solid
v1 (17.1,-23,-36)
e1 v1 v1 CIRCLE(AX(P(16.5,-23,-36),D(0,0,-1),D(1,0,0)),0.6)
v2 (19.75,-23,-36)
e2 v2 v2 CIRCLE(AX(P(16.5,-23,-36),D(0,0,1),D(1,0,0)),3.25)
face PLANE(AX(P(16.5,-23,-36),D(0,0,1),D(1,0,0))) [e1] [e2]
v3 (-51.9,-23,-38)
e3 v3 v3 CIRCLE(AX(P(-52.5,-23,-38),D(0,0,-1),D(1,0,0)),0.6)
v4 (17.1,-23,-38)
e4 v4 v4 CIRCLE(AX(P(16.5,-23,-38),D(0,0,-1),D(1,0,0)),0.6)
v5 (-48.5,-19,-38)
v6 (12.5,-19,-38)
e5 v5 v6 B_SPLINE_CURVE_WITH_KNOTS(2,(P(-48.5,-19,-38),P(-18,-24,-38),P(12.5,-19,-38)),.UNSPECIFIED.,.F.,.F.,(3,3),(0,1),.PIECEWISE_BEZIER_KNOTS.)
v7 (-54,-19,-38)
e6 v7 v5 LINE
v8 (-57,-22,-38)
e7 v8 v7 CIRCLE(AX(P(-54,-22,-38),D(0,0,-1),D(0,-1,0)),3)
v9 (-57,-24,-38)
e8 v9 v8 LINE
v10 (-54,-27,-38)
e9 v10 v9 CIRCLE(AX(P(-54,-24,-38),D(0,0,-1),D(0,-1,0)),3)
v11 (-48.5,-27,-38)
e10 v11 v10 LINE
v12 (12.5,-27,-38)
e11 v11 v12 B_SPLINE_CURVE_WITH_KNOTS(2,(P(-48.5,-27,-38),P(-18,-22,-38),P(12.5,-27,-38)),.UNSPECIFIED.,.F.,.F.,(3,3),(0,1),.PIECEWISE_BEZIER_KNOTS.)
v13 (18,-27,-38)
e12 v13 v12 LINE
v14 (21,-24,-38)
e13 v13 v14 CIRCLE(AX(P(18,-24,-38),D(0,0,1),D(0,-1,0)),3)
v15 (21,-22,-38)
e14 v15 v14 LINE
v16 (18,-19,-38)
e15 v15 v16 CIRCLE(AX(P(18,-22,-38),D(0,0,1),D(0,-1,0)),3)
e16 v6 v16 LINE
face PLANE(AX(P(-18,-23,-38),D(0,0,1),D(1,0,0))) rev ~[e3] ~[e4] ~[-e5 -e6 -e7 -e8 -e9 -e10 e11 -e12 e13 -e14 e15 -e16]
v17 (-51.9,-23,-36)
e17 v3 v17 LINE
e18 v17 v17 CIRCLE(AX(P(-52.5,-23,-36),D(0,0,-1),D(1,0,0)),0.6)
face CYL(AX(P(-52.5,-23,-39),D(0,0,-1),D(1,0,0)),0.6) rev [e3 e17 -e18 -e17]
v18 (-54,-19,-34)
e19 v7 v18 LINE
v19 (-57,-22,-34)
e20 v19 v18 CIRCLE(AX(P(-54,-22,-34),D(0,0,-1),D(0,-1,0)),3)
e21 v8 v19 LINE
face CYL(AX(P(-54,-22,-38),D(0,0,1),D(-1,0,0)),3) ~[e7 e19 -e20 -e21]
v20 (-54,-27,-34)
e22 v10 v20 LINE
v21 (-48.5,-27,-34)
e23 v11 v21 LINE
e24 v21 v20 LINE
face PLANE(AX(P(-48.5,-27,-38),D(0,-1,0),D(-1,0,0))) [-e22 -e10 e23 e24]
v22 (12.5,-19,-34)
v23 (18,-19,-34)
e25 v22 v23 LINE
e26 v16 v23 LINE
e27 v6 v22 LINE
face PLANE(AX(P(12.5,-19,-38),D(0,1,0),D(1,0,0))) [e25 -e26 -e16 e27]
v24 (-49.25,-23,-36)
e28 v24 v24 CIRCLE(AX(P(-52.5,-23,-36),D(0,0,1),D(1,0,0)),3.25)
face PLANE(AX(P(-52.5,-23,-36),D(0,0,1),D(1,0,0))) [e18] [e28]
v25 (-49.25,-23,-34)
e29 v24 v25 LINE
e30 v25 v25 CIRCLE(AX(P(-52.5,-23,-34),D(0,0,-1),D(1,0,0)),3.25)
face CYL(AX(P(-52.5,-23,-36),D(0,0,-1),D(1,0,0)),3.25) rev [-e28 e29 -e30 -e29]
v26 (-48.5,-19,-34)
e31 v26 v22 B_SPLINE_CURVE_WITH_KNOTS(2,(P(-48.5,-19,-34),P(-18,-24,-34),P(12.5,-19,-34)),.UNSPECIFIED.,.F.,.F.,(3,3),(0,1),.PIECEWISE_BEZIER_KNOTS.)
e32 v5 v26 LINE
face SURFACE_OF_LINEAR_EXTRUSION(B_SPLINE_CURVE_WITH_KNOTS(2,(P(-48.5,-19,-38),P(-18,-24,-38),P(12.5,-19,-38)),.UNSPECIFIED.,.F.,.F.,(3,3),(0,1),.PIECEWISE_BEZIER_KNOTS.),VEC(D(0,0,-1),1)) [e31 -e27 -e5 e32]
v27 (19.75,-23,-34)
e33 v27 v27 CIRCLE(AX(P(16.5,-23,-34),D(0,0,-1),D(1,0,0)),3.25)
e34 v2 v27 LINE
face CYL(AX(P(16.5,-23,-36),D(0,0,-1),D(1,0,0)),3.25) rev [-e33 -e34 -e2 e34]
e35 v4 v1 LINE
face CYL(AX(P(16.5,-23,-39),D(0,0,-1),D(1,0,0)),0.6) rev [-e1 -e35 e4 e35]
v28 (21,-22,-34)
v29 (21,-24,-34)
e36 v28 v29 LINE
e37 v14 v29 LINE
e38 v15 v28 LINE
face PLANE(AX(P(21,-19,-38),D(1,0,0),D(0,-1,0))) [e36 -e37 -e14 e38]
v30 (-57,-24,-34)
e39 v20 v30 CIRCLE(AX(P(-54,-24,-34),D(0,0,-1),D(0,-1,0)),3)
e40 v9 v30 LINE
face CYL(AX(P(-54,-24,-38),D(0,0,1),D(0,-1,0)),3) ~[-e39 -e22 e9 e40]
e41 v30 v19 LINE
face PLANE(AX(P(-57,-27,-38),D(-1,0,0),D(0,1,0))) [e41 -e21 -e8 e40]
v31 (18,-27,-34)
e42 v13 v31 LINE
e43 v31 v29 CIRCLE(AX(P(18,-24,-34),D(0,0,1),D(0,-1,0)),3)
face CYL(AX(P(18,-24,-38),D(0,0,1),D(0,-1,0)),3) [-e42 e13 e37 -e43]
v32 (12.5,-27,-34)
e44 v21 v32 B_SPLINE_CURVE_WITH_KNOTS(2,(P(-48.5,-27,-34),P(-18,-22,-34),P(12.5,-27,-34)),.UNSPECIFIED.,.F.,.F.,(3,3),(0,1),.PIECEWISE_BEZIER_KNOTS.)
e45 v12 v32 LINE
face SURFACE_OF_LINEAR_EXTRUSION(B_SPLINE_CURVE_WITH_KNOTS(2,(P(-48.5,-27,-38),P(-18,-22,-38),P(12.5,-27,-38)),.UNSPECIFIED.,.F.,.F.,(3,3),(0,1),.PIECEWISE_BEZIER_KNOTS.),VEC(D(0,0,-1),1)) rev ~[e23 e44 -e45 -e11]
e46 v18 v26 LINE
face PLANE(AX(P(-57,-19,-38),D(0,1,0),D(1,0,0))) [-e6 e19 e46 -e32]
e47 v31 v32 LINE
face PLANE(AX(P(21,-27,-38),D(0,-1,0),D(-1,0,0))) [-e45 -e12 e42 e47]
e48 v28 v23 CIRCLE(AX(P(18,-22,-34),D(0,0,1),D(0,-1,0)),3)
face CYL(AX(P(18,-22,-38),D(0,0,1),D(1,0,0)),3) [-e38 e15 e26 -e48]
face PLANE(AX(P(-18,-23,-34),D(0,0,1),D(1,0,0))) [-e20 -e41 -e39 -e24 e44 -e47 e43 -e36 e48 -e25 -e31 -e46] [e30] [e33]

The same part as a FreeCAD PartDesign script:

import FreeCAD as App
import Part
import Sketcher
from FreeCAD import Vector


def edges_at(feature, points):
    """Names of the edges that pass closest to the given points."""
    edges = feature.Shape.Edges
    near = lambda p: min(range(len(edges)), key=lambda i: edges[i].distToShape(Part.Vertex(*p))[0])
    return sorted({f"Edge{near(p) + 1}" for p in points})

doc = App.newDocument("Part")
params = doc.addObject("Spreadsheet::Sheet", "Params")
for row, (alias, value) in enumerate([
    ("sketch1_diameter", "6.5 mm"),
    ("pad1_length", "3.5 mm"),
    ("sketch2_diameter", "1.2 mm"),
    ("pad2_length", "9.5 mm"),
    ("sketch3_diameter", "1.2 mm"),
    ("pad3_length", "9.5 mm"),
    ("sketch4_diameter", "6.5 mm"),
    ("pad4_length", "3.5 mm"),
    ("sketch5_width", "8.5 mm"),
    ("pad5_length", "4 mm"),
    ("fillet_radius", "3 mm"),
], start=1):
    params.set(f"A{row}", alias)
    params.set(f"B{row}", "=" + value)
    params.setAlias(f"B{row}", alias)

body = doc.addObject("PartDesign::Body", "Body")

sketch1 = body.newObject("Sketcher::SketchObject", "Sketch")
sketch1.AttachmentSupport = (doc.getObject("XY_Plane"), [""])
sketch1.MapMode = "FlatFace"
sketch1.AttachmentOffset = App.Placement(Vector(0, 0, -36), App.Rotation())
sketch1.addGeometry(Part.Circle(Vector(-52.5, 23, 0), Vector(0, 0, 1), 3.2), False)
sketch1.addConstraint(Sketcher.Constraint("Diameter", 0, 6.5))
sketch1.addConstraint(Sketcher.Constraint("DistanceY", -1, 1, 0, 3, 23.0))
sketch1.addConstraint(Sketcher.Constraint("DistanceX", 0, 3, -1, 1, 52.5))
sketch1.setExpression("Constraints[0]", "Params.sketch1_diameter")
pad1 = body.newObject("PartDesign::Pad", "Pad")
pad1.Profile = sketch1
pad1.setExpression("Length", "Params.pad1_length")
body2 = doc.addObject("PartDesign::Body", "Body001")

sketch2 = body2.newObject("Sketcher::SketchObject", "Sketch001")
sketch2.AttachmentSupport = (doc.getObject("XY_Plane001"), [""])
sketch2.MapMode = "FlatFace"
sketch2.AttachmentOffset = App.Placement(Vector(0, 0, -39), App.Rotation())
sketch2.addGeometry(Part.Circle(Vector(16.5, 23, 0), Vector(0, 0, 1), 0.6), False)
sketch2.addConstraint(Sketcher.Constraint("Diameter", 0, 1.2))
sketch2.addConstraint(Sketcher.Constraint("DistanceY", -1, 1, 0, 3, 23.0))
sketch2.addConstraint(Sketcher.Constraint("DistanceX", -1, 1, 0, 3, 16.5))
sketch2.setExpression("Constraints[0]", "Params.sketch2_diameter")
pad2 = body2.newObject("PartDesign::Pad", "Pad001")
pad2.Profile = sketch2
pad2.setExpression("Length", "Params.pad2_length")
body3 = doc.addObject("PartDesign::Body", "Body002")

sketch3 = body3.newObject("Sketcher::SketchObject", "Sketch002")
sketch3.AttachmentSupport = (doc.getObject("XY_Plane002"), [""])
sketch3.MapMode = "FlatFace"
sketch3.AttachmentOffset = App.Placement(Vector(0, 0, -39), App.Rotation())
sketch3.addGeometry(Part.Circle(Vector(-52.5, 23, 0), Vector(0, 0, 1), 0.6), False)
sketch3.addConstraint(Sketcher.Constraint("Diameter", 0, 1.2))
sketch3.addConstraint(Sketcher.Constraint("DistanceY", -1, 1, 0, 3, 23.0))
sketch3.addConstraint(Sketcher.Constraint("DistanceX", 0, 3, -1, 1, 52.5))
sketch3.setExpression("Constraints[0]", "Params.sketch3_diameter")
pad3 = body3.newObject("PartDesign::Pad", "Pad002")
pad3.Profile = sketch3
pad3.setExpression("Length", "Params.pad3_length")
body4 = doc.addObject("PartDesign::Body", "Body003")
body4.AllowCompound = True

sketch4 = body4.newObject("Sketcher::SketchObject", "Sketch003")
sketch4.AttachmentSupport = (doc.getObject("XY_Plane003"), [""])
sketch4.MapMode = "FlatFace"
sketch4.AttachmentOffset = App.Placement(Vector(0, 0, -36), App.Rotation())
sketch4.addGeometry(Part.Circle(Vector(16.5, 23, 0), Vector(0, 0, 1), 3.2), False)
sketch4.addConstraint(Sketcher.Constraint("Diameter", 0, 6.5))
sketch4.addConstraint(Sketcher.Constraint("DistanceY", -1, 1, 0, 3, 23.0))
sketch4.addConstraint(Sketcher.Constraint("DistanceX", -1, 1, 0, 3, 16.5))
sketch4.setExpression("Constraints[0]", "Params.sketch4_diameter")
pad4 = body4.newObject("PartDesign::Pad", "Pad003")
pad4.Profile = sketch4
pad4.setExpression("Length", "Params.pad4_length")
doc.recompute()

boolean = body4.newObject("PartDesign::Boolean", "Boolean")
boolean.Type = "Fuse"
boolean.addObjects([body])
doc.recompute()

boolean2 = body4.newObject("PartDesign::Boolean", "Boolean001")
boolean2.Type = "Fuse"
boolean2.addObjects([body2])
doc.recompute()

boolean3 = body4.newObject("PartDesign::Boolean", "Boolean002")
boolean3.Type = "Fuse"
boolean3.addObjects([body3])
body5 = doc.addObject("PartDesign::Body", "Body004")

sketch5 = body5.newObject("Sketcher::SketchObject", "Sketch004")
sketch5.AttachmentSupport = (doc.getObject("XY_Plane004"), [""])
sketch5.MapMode = "FlatFace"
sketch5.addGeometry(Part.BSplineCurve([Vector(-48.5, 19, 0), Vector(-18, 24, 0), Vector(12.5, 19, 0)], [3, 3], [0, 1], False, 2, [1, 1, 1], False), False)
sketch5.addGeometry(Part.LineSegment(Vector(12.5, 19, 0), Vector(21, 19, 0)), False)
sketch5.addGeometry(Part.LineSegment(Vector(21, 19, 0), Vector(21, 27, 0)), False)
sketch5.addGeometry(Part.LineSegment(Vector(21, 27, 0), Vector(12.5, 27, 0)), False)
sketch5.addGeometry(Part.BSplineCurve([Vector(-48.5, 27, 0), Vector(-18, 22, 0), Vector(12.5, 27, 0)], [3, 3], [0, 1], False, 2, [1, 1, 1], False), False)
sketch5.addGeometry(Part.LineSegment(Vector(-48.5, 27, 0), Vector(-57, 27, 0)), False)
sketch5.addGeometry(Part.LineSegment(Vector(-57, 27, 0), Vector(-57, 19, 0)), False)
sketch5.addGeometry(Part.LineSegment(Vector(-57, 19, 0), Vector(-48.5, 19, 0)), False)
sketch5.addConstraint(Sketcher.Constraint("Block", 0))
sketch5.addConstraint(Sketcher.Constraint("Block", 4))
sketch5.addConstraint(Sketcher.Constraint("Coincident", 0, 2, 1, 1))
sketch5.addConstraint(Sketcher.Constraint("Coincident", 1, 2, 2, 1))
sketch5.addConstraint(Sketcher.Constraint("Coincident", 2, 2, 3, 1))
sketch5.addConstraint(Sketcher.Constraint("Coincident", 3, 2, 4, 2))
sketch5.addConstraint(Sketcher.Constraint("Coincident", 4, 1, 5, 1))
sketch5.addConstraint(Sketcher.Constraint("Coincident", 5, 2, 6, 1))
sketch5.addConstraint(Sketcher.Constraint("Coincident", 6, 2, 7, 1))
sketch5.addConstraint(Sketcher.Constraint("Coincident", 7, 2, 0, 1))
sketch5.addConstraint(Sketcher.Constraint("Horizontal", 1))
sketch5.addConstraint(Sketcher.Constraint("Vertical", 2))
sketch5.addConstraint(Sketcher.Constraint("Horizontal", 3))
sketch5.addConstraint(Sketcher.Constraint("Horizontal", 5))
sketch5.addConstraint(Sketcher.Constraint("Vertical", 6))
sketch5.addConstraint(Sketcher.Constraint("Horizontal", 7))
sketch5.addConstraint(Sketcher.Constraint("Equal", 3, 5))
sketch5.addConstraint(Sketcher.Constraint("DistanceX", 1, 1, 1, 2, 8.5))
sketch5.setExpression("Constraints[17]", "Params.sketch5_width")
pad5 = body5.newObject("PartDesign::Pad", "Pad004")
pad5.Profile = sketch5
pad5.setExpression("Length", "Params.pad5_length")
body6 = doc.addObject("PartDesign::Body", "Body005")
doc.recompute()

body5.Placement = App.Placement(Vector(0, 0, -38), App.Rotation(Vector(0, 0, 1), 0))
boolean4 = body6.newObject("PartDesign::Boolean", "Boolean003")
boolean4.Type = "Fuse"
boolean4.addObjects([body5])
doc.recompute()

boolean5 = body6.newObject("PartDesign::Boolean", "Boolean004")
boolean5.Type = "Cut"
boolean5.addObjects([body4])
doc.recompute()

fillet = body6.newObject("PartDesign::Fillet", "Fillet")
fillet.Base = (boolean5, edges_at(boolean5, [
    (-57, 19, -36),
    (21, 19, -36),
    (-57, 27, -36),
    (21, 27, -36),
]))
fillet.setExpression("Radius", "Params.fillet_radius")
body7 = doc.addObject("PartDesign::Body", "Body006")
doc.recompute()

body6.Placement = App.Placement(Vector(0, -46, 0), App.Rotation(Vector(0, 0, 1), 0))
boolean6 = body7.newObject("PartDesign::Boolean", "Boolean005")
boolean6.Type = "Fuse"
boolean6.addObjects([body6])

doc.recompute()
